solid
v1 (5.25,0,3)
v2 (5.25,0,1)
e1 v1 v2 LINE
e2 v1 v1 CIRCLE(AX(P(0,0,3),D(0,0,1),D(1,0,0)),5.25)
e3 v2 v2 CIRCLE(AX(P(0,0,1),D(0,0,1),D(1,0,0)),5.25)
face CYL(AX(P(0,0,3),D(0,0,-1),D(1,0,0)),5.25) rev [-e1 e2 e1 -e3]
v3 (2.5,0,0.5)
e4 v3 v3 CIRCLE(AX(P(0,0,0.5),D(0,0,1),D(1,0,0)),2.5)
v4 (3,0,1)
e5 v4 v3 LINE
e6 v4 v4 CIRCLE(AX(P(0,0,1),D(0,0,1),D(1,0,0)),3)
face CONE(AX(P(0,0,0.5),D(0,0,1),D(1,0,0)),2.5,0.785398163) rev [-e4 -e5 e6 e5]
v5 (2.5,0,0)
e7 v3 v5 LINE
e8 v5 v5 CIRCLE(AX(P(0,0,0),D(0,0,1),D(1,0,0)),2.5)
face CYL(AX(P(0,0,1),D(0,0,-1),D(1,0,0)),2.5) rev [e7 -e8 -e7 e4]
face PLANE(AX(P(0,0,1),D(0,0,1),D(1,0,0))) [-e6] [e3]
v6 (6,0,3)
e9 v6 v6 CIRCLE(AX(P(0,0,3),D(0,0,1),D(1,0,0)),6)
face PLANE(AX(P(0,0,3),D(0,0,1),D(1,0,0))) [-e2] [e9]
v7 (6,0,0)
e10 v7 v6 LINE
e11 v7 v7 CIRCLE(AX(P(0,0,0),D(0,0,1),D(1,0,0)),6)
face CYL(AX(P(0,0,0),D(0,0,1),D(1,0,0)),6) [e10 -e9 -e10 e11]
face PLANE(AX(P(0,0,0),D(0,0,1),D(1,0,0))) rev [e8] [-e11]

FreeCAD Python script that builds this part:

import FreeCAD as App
import Part
import Sketcher
from FreeCAD import Vector


def edges_at(feature, points):
    """Names of the edges that pass closest to the given points."""
    edges = feature.Shape.Edges
    near = lambda p: min(range(len(edges)), key=lambda i: edges[i].distToShape(Part.Vertex(*p))[0])
    return sorted({f"Edge{near(p) + 1}" for p in points})

doc = App.newDocument("Part")
params = doc.addObject("Spreadsheet::Sheet", "Params")
for row, (alias, value) in enumerate([
    ("sketch1_height", "3 mm"),
    ("sketch1_height2", "2 mm"),
    ("sketch1_width", "3.5 mm"),
    ("sketch1_width2", "0.75 mm"),
    ("revolution_angle", "360 deg"),
    ("chamfer_size", "0.5 mm"),
], start=1):
    params.set(f"A{row}", alias)
    params.set(f"B{row}", "=" + value)
    params.setAlias(f"B{row}", alias)

body = doc.addObject("PartDesign::Body", "Body")

# Sketch on XZ plane
sketch1 = body.newObject("Sketcher::SketchObject", "Sketch")
sketch1.AttachmentSupport = (doc.getObject("XZ_Plane"), [""])
sketch1.MapMode = "FlatFace"
sketch1.addGeometry(Part.LineSegment(Vector(2.5, 0, 0), Vector(6, 0, 0)), False)
sketch1.addGeometry(Part.LineSegment(Vector(6, 0, 0), Vector(6, 3, 0)), False)
sketch1.addGeometry(Part.LineSegment(Vector(6, 3, 0), Vector(5.2, 3, 0)), False)
sketch1.addGeometry(Part.LineSegment(Vector(5.2, 3, 0), Vector(5.2, 1, 0)), False)
sketch1.addGeometry(Part.LineSegment(Vector(5.2, 1, 0), Vector(2.5, 1, 0)), False)
sketch1.addGeometry(Part.LineSegment(Vector(2.5, 1, 0), Vector(2.5, 0, 0)), False)
sketch1.addConstraint(Sketcher.Constraint("Coincident", 0, 2, 1, 1))
sketch1.addConstraint(Sketcher.Constraint("Coincident", 1, 2, 2, 1))
sketch1.addConstraint(Sketcher.Constraint("Coincident", 2, 2, 3, 1))
sketch1.addConstraint(Sketcher.Constraint("Coincident", 3, 2, 4, 1))
sketch1.addConstraint(Sketcher.Constraint("Coincident", 4, 2, 5, 1))
sketch1.addConstraint(Sketcher.Constraint("Coincident", 5, 2, 0, 1))
sketch1.addConstraint(Sketcher.Constraint("Horizontal", 0))
sketch1.addConstraint(Sketcher.Constraint("Vertical", 1))
sketch1.addConstraint(Sketcher.Constraint("Horizontal", 2))
sketch1.addConstraint(Sketcher.Constraint("Vertical", 3))
sketch1.addConstraint(Sketcher.Constraint("Horizontal", 4))
sketch1.addConstraint(Sketcher.Constraint("Vertical", 5))
sketch1.addConstraint(Sketcher.Constraint("PointOnObject", 0, 2, -1))
sketch1.addConstraint(Sketcher.Constraint("DistanceY", 1, 1, 1, 2, 3.0))
sketch1.addConstraint(Sketcher.Constraint("DistanceY", 3, 2, 3, 1, 2.0))
sketch1.addConstraint(Sketcher.Constraint("DistanceX", 0, 1, 0, 2, 3.5))
sketch1.addConstraint(Sketcher.Constraint("DistanceX", -1, 1, 0, 2, 6.0))
sketch1.addConstraint(Sketcher.Constraint("DistanceX", 2, 2, 2, 1, 0.75))
sketch1.setExpression("Constraints[13]", "Params.sketch1_height")
sketch1.setExpression("Constraints[14]", "Params.sketch1_height2")
sketch1.setExpression("Constraints[15]", "Params.sketch1_width")
sketch1.setExpression("Constraints[17]", "Params.sketch1_width2")
revolution = body.newObject("PartDesign::Revolution", "Revolution")
revolution.Profile = sketch1
revolution.ReferenceAxis = (sketch1, ["V_Axis"])
revolution.setExpression("Angle", "Params.revolution_angle")
doc.recompute()

chamfer = body.newObject("PartDesign::Chamfer", "Chamfer")
chamfer.Base = (revolution, edges_at(revolution, [(-2.5, 0, 1)]))
chamfer.setExpression("Size", "Params.chamfer_size")

doc.recompute()
